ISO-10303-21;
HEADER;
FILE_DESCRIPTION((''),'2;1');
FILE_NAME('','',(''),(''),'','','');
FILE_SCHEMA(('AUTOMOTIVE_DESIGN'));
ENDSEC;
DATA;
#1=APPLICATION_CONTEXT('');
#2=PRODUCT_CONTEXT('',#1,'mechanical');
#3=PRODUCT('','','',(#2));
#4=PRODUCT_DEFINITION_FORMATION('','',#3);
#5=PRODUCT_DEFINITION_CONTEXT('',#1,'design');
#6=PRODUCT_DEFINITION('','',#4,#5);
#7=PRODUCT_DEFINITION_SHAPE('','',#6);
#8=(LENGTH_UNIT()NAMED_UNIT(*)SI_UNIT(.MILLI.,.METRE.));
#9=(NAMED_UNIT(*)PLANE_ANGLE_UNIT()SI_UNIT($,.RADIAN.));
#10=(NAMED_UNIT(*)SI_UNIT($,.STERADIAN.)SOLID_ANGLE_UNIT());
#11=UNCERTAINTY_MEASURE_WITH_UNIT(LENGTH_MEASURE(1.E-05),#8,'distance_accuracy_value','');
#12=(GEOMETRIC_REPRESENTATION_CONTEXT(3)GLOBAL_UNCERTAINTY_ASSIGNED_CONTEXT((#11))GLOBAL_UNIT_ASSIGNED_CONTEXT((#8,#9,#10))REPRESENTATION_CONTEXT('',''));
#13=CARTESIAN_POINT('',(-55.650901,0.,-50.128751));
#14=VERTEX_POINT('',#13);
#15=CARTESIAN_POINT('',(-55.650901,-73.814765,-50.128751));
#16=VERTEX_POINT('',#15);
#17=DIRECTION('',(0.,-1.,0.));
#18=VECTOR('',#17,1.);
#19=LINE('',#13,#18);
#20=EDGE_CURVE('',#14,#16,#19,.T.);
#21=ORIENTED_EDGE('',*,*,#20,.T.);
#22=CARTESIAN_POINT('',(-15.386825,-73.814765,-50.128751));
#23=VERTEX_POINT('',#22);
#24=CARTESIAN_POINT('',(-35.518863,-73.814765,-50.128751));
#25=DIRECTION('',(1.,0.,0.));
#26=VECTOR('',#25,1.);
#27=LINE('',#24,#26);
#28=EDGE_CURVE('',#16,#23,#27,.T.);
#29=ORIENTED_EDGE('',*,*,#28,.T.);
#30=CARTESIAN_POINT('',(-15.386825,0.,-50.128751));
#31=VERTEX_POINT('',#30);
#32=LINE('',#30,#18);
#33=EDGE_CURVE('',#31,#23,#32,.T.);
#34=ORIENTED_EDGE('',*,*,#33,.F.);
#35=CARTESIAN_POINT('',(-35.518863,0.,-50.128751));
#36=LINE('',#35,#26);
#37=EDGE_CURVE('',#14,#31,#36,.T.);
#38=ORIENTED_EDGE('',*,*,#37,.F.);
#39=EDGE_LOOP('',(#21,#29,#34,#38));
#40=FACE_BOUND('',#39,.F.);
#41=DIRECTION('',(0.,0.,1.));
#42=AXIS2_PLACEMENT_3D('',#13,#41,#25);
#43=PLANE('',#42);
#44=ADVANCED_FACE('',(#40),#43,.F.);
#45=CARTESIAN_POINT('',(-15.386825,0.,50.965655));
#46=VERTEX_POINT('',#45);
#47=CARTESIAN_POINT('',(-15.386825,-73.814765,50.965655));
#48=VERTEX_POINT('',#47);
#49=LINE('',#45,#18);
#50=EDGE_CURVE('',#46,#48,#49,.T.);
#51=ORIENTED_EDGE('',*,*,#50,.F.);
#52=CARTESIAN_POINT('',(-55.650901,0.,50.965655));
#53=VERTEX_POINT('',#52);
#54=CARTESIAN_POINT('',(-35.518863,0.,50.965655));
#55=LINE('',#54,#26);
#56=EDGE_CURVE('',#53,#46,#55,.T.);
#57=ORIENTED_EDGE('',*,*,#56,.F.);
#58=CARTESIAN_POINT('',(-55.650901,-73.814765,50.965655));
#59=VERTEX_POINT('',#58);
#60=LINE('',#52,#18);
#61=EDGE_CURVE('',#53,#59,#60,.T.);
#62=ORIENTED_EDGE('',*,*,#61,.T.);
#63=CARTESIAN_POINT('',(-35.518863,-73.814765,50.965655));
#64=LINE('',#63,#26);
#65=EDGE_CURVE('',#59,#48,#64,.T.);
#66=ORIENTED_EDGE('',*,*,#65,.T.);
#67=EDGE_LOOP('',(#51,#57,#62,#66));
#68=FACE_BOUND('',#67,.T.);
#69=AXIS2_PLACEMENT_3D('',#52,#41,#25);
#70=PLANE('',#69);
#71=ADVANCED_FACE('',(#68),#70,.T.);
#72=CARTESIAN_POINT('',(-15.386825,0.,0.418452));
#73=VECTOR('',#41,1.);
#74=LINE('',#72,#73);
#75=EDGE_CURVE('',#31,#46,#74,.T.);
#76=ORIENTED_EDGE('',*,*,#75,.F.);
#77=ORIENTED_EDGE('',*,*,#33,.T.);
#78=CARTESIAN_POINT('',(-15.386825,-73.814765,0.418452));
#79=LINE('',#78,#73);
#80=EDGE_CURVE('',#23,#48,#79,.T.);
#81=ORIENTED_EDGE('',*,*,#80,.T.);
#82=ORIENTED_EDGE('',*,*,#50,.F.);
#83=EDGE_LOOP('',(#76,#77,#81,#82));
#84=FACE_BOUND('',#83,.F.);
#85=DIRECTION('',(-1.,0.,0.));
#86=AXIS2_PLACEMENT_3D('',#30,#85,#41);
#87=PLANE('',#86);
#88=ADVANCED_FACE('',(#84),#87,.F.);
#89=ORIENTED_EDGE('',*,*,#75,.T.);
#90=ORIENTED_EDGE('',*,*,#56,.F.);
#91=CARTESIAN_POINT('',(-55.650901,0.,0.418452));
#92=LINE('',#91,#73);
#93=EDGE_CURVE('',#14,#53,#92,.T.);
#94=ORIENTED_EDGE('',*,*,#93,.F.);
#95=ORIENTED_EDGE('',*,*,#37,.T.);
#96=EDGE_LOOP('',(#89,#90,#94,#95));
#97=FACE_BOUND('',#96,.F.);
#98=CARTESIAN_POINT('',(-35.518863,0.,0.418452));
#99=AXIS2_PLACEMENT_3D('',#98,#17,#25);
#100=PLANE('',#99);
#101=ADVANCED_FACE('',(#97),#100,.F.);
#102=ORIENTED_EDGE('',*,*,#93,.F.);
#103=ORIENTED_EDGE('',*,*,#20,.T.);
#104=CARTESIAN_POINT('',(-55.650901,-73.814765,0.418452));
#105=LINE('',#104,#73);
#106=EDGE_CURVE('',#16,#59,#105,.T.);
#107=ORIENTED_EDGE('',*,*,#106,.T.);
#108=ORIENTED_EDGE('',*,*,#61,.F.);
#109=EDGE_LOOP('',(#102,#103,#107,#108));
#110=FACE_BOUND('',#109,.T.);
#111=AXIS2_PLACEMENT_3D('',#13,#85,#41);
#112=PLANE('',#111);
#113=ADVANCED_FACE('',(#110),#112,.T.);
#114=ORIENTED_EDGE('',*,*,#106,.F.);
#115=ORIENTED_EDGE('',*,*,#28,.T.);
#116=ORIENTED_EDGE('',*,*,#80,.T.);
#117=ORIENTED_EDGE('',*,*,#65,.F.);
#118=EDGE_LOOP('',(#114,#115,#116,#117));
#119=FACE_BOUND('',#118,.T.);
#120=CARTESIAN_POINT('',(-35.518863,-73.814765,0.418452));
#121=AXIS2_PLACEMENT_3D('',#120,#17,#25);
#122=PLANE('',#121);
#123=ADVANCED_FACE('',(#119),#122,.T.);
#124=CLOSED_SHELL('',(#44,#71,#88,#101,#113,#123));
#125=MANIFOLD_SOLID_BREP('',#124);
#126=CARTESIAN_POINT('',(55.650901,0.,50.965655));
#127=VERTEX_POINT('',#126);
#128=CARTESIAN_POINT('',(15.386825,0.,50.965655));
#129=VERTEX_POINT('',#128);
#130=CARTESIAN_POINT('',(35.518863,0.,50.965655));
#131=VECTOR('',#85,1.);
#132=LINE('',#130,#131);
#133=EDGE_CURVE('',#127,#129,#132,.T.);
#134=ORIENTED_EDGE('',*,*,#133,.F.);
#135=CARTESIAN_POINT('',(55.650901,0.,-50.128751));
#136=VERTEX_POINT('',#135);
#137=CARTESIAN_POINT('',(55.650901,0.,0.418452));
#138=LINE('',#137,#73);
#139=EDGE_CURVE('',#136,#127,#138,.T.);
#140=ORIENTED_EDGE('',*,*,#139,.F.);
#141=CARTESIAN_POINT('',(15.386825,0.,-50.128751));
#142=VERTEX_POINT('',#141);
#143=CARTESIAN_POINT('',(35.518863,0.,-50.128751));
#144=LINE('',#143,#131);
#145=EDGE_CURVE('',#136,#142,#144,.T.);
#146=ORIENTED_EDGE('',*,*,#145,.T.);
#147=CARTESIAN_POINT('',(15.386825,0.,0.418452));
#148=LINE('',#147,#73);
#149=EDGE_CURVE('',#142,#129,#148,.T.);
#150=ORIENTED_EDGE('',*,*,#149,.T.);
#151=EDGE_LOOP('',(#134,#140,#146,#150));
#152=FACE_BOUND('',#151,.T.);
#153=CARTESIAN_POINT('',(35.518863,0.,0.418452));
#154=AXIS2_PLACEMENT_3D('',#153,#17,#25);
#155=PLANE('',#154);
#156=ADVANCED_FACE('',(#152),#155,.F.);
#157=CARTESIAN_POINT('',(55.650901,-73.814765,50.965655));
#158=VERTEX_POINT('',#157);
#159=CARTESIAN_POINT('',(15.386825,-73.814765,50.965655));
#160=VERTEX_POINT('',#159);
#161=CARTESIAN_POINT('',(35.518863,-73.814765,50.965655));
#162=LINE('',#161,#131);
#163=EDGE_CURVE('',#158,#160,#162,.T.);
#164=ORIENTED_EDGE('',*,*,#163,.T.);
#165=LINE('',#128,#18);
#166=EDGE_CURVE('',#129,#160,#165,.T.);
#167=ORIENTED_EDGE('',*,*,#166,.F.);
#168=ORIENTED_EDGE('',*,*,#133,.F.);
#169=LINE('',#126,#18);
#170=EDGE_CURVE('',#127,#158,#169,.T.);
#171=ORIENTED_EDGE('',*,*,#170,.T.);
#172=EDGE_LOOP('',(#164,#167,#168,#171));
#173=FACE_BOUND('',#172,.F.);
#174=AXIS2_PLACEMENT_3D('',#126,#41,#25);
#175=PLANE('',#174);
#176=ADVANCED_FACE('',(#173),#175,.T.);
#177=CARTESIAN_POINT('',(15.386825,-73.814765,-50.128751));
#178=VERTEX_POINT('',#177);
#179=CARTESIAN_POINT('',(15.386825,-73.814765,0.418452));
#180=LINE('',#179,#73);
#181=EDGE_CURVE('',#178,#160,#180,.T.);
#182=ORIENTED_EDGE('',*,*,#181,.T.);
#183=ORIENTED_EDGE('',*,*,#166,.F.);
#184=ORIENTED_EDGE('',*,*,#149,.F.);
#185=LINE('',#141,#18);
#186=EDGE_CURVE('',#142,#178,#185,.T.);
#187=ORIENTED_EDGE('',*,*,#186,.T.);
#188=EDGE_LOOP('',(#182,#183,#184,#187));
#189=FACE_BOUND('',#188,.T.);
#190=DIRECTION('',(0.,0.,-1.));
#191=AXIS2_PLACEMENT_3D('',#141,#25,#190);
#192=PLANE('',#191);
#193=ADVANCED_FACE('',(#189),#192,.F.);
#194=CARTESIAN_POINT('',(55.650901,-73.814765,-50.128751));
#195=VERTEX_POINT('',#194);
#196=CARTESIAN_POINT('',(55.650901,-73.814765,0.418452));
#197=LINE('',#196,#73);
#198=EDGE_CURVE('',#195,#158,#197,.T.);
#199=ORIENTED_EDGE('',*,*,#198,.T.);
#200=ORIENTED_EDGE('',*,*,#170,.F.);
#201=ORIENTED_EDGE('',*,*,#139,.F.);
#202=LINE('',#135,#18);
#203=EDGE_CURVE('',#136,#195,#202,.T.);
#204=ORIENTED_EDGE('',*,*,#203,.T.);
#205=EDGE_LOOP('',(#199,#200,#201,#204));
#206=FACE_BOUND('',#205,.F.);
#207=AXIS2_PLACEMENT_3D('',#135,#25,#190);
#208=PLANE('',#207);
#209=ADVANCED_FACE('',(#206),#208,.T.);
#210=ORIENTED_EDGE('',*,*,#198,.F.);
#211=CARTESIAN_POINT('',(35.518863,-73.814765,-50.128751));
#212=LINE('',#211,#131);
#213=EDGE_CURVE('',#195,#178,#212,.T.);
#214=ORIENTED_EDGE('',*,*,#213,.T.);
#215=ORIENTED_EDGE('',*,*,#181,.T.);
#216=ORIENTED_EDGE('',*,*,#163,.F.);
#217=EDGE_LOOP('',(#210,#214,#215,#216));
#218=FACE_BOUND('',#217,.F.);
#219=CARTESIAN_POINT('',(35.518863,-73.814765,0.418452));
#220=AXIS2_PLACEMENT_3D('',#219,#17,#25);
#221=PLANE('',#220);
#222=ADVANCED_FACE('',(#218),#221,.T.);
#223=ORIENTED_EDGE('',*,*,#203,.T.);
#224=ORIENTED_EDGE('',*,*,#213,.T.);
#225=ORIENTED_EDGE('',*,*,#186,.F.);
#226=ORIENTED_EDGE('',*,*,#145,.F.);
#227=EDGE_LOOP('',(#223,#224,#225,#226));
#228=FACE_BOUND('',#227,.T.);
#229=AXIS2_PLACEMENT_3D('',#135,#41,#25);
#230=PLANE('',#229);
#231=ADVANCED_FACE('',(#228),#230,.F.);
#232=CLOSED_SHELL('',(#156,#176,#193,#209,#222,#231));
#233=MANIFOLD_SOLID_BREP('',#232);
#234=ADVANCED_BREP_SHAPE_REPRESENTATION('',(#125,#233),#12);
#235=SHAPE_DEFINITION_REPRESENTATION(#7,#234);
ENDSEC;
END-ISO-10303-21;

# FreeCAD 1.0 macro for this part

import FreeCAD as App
import Part
import Sketcher


def add_polygon(sketch, points):
    """Adds a closed chain of lines whose ends are joined by coincident constraints."""
    first, n = sketch.GeometryCount, len(points)
    for a, b in zip(points, points[1:] + points[:1]):
        sketch.addGeometry(Part.LineSegment(App.Vector(*a, 0), App.Vector(*b, 0)), False)
    for i in range(n):
        sketch.addConstraint(Sketcher.Constraint("Coincident", first + i, 2, first + (i + 1) % n, 1))

doc = App.newDocument("Part")
body = doc.addObject("PartDesign::Body", "Body")

# Sketch on XZ plane
sketch1 = body.newObject("Sketcher::SketchObject", "Sketch")
sketch1.AttachmentSupport = (doc.getObject("XZ_Plane"), [""])
sketch1.MapMode = "FlatFace"
add_polygon(sketch1, [(-56, 51), (-56, -50), (-15, -50), (-15, 51)])  # lines 0-3
sketch1.addConstraint([
    Sketcher.Constraint("Vertical", 0),
    Sketcher.Constraint("Horizontal", 1),
    Sketcher.Constraint("Vertical", 2),
    Sketcher.Constraint("Horizontal", 3),
    Sketcher.Constraint("DistanceX", 0, 2, -1, 1, 55.650901),
    Sketcher.Constraint("DistanceX", 1, 1, 1, 2, 40.264076),
    Sketcher.Constraint("DistanceY", 0, 2, 0, 1, 101.094407),
    Sketcher.Constraint("DistanceY", 0, 2, -1, 1, 50.128751),
])
pad1 = body.newObject("PartDesign::Pad", "Pad")
pad1.Profile = sketch1
pad1.Length = 73.814765
body2 = doc.addObject("PartDesign::Body", "Body001")
doc.recompute()

mirroring = doc.addObject("Part::Mirroring", "Mirroring")
mirroring.Source = body
mirroring.Base = App.Vector(0, 0, 0)
mirroring.Normal = App.Vector(1, 0, 0)
body2.BaseFeature = mirroring
doc.recompute()
mirroring.Visibility = False

doc.recompute()
